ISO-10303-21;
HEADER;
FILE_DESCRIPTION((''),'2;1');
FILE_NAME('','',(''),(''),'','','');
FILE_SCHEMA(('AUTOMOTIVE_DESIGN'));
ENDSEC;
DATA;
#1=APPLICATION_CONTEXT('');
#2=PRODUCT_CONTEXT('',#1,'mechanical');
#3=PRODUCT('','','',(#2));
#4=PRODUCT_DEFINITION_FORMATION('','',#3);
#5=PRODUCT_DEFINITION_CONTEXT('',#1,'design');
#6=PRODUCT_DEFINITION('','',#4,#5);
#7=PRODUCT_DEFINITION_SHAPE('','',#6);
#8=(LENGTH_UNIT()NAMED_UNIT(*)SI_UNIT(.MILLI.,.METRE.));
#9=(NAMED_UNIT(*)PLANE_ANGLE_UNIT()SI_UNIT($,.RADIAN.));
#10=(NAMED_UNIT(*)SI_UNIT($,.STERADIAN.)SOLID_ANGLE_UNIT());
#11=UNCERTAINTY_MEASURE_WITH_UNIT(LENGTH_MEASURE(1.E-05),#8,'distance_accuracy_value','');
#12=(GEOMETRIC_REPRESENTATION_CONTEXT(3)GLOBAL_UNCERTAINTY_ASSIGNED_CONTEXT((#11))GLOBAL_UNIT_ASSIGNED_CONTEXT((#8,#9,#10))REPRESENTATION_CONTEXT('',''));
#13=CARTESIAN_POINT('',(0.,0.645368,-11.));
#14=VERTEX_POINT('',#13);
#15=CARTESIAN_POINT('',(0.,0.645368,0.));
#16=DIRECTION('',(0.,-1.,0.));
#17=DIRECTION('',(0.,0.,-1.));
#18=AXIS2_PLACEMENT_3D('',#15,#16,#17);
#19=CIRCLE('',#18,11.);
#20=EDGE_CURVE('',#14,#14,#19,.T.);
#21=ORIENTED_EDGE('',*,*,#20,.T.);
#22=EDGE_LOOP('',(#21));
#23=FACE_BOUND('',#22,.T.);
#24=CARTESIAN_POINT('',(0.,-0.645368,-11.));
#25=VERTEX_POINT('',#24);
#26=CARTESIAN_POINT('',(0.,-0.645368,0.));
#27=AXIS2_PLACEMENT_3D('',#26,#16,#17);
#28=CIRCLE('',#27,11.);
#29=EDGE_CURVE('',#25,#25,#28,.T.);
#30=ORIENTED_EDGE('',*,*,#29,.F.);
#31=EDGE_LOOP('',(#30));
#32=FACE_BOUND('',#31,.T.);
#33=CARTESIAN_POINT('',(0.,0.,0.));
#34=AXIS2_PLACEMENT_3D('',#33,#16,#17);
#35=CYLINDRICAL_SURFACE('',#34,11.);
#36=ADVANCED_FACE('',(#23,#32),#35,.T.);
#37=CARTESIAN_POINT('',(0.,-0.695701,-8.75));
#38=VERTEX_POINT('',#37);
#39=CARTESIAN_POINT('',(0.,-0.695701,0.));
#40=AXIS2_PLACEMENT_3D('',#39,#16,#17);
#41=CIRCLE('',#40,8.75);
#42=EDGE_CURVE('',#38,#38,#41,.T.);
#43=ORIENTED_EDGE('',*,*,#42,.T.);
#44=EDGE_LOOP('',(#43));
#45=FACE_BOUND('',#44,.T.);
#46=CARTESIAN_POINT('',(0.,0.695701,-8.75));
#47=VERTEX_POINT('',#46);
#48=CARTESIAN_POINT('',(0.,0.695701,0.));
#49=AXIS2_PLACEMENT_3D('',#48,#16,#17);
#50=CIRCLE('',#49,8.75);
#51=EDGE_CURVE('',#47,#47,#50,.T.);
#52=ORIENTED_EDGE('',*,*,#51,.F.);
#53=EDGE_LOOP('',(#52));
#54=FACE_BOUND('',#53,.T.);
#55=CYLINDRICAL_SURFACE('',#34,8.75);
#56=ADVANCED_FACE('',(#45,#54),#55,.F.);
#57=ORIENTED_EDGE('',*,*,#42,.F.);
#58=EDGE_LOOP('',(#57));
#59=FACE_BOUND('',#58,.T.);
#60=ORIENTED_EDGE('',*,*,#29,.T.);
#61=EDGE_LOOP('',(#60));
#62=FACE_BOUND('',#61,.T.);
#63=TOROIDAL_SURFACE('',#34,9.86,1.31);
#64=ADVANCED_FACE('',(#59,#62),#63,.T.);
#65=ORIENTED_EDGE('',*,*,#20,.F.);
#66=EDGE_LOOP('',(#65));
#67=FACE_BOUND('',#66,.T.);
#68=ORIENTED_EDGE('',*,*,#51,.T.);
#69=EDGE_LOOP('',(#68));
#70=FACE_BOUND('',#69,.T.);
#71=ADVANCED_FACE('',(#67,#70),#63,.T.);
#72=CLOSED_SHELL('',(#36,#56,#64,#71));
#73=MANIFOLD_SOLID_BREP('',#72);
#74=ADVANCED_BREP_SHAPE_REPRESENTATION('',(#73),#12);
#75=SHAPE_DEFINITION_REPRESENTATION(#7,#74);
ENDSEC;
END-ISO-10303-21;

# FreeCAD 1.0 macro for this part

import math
import FreeCAD as App
import Part
import Sketcher

V = App.Vector

doc = App.newDocument("Part")
params = doc.addObject("Spreadsheet::Sheet", "Params")
for row, (alias, value) in enumerate([
    ("sketch1_radius", "1.31 mm"),
    ("revolution_angle", "360 deg"),
], start=1):
    params.set(f"A{row}", alias)
    params.set(f"B{row}", "=" + value)
    params.setAlias(f"B{row}", alias)

body = doc.addObject("PartDesign::Body", "Body")

sketch1 = body.newObject("Sketcher::SketchObject", "Sketch")
sketch1.AttachmentSupport = (doc.getObject("XY_Plane"), [""])
sketch1.MapMode = "FlatFace"
sketch1.addGeometry(Part.ArcOfCircle(Part.Circle(V(-9.9, 0, 0), V(0, 0, 1), 1.3), math.radians(-150), math.radians(-32)), False)
sketch1.addGeometry(Part.LineSegment(V(-8.8, -0.7, 0), V(-8.8, 0.7, 0)), False)
sketch1.addGeometry(Part.ArcOfCircle(Part.Circle(V(-9.9, 0, 0), V(0, 0, 1), 1.3), math.radians(32), math.radians(150)), False)
sketch1.addGeometry(Part.LineSegment(V(-11, 0.6, 0), V(-11, -0.6, 0)), False)
sketch1.addConstraint(Sketcher.Constraint("Coincident", 0, 2, 1, 1))
sketch1.addConstraint(Sketcher.Constraint("Coincident", 1, 2, 2, 1))
sketch1.addConstraint(Sketcher.Constraint("Coincident", 2, 2, 3, 1))
sketch1.addConstraint(Sketcher.Constraint("Coincident", 3, 2, 0, 1))
sketch1.addConstraint(Sketcher.Constraint("Vertical", 1))
sketch1.addConstraint(Sketcher.Constraint("Vertical", 3))
sketch1.addConstraint(Sketcher.Constraint("Coincident", 2, 3, 0, 3))
sketch1.addConstraint(Sketcher.Constraint("Equal", 0, 2))
sketch1.addConstraint(Sketcher.Constraint("PointOnObject", 0, 3, -1))
sketch1.addConstraint(Sketcher.Constraint("Radius", 0, 1.31))
sketch1.addConstraint(Sketcher.Constraint("DistanceX", 2, 2, -1, 1, 11.0))
sketch1.addConstraint(Sketcher.Constraint("DistanceX", 0, 3, -1, 1, 9.86))
sketch1.addConstraint(Sketcher.Constraint("DistanceX", 0, 2, -1, 1, 8.75))
sketch1.setExpression("Constraints[9]", "Params.sketch1_radius")
revolution = body.newObject("PartDesign::Revolution", "Revolution")
revolution.Profile = sketch1
revolution.ReferenceAxis = (sketch1, ["V_Axis"])
revolution.setExpression("Angle", "Params.revolution_angle")

doc.recompute()
